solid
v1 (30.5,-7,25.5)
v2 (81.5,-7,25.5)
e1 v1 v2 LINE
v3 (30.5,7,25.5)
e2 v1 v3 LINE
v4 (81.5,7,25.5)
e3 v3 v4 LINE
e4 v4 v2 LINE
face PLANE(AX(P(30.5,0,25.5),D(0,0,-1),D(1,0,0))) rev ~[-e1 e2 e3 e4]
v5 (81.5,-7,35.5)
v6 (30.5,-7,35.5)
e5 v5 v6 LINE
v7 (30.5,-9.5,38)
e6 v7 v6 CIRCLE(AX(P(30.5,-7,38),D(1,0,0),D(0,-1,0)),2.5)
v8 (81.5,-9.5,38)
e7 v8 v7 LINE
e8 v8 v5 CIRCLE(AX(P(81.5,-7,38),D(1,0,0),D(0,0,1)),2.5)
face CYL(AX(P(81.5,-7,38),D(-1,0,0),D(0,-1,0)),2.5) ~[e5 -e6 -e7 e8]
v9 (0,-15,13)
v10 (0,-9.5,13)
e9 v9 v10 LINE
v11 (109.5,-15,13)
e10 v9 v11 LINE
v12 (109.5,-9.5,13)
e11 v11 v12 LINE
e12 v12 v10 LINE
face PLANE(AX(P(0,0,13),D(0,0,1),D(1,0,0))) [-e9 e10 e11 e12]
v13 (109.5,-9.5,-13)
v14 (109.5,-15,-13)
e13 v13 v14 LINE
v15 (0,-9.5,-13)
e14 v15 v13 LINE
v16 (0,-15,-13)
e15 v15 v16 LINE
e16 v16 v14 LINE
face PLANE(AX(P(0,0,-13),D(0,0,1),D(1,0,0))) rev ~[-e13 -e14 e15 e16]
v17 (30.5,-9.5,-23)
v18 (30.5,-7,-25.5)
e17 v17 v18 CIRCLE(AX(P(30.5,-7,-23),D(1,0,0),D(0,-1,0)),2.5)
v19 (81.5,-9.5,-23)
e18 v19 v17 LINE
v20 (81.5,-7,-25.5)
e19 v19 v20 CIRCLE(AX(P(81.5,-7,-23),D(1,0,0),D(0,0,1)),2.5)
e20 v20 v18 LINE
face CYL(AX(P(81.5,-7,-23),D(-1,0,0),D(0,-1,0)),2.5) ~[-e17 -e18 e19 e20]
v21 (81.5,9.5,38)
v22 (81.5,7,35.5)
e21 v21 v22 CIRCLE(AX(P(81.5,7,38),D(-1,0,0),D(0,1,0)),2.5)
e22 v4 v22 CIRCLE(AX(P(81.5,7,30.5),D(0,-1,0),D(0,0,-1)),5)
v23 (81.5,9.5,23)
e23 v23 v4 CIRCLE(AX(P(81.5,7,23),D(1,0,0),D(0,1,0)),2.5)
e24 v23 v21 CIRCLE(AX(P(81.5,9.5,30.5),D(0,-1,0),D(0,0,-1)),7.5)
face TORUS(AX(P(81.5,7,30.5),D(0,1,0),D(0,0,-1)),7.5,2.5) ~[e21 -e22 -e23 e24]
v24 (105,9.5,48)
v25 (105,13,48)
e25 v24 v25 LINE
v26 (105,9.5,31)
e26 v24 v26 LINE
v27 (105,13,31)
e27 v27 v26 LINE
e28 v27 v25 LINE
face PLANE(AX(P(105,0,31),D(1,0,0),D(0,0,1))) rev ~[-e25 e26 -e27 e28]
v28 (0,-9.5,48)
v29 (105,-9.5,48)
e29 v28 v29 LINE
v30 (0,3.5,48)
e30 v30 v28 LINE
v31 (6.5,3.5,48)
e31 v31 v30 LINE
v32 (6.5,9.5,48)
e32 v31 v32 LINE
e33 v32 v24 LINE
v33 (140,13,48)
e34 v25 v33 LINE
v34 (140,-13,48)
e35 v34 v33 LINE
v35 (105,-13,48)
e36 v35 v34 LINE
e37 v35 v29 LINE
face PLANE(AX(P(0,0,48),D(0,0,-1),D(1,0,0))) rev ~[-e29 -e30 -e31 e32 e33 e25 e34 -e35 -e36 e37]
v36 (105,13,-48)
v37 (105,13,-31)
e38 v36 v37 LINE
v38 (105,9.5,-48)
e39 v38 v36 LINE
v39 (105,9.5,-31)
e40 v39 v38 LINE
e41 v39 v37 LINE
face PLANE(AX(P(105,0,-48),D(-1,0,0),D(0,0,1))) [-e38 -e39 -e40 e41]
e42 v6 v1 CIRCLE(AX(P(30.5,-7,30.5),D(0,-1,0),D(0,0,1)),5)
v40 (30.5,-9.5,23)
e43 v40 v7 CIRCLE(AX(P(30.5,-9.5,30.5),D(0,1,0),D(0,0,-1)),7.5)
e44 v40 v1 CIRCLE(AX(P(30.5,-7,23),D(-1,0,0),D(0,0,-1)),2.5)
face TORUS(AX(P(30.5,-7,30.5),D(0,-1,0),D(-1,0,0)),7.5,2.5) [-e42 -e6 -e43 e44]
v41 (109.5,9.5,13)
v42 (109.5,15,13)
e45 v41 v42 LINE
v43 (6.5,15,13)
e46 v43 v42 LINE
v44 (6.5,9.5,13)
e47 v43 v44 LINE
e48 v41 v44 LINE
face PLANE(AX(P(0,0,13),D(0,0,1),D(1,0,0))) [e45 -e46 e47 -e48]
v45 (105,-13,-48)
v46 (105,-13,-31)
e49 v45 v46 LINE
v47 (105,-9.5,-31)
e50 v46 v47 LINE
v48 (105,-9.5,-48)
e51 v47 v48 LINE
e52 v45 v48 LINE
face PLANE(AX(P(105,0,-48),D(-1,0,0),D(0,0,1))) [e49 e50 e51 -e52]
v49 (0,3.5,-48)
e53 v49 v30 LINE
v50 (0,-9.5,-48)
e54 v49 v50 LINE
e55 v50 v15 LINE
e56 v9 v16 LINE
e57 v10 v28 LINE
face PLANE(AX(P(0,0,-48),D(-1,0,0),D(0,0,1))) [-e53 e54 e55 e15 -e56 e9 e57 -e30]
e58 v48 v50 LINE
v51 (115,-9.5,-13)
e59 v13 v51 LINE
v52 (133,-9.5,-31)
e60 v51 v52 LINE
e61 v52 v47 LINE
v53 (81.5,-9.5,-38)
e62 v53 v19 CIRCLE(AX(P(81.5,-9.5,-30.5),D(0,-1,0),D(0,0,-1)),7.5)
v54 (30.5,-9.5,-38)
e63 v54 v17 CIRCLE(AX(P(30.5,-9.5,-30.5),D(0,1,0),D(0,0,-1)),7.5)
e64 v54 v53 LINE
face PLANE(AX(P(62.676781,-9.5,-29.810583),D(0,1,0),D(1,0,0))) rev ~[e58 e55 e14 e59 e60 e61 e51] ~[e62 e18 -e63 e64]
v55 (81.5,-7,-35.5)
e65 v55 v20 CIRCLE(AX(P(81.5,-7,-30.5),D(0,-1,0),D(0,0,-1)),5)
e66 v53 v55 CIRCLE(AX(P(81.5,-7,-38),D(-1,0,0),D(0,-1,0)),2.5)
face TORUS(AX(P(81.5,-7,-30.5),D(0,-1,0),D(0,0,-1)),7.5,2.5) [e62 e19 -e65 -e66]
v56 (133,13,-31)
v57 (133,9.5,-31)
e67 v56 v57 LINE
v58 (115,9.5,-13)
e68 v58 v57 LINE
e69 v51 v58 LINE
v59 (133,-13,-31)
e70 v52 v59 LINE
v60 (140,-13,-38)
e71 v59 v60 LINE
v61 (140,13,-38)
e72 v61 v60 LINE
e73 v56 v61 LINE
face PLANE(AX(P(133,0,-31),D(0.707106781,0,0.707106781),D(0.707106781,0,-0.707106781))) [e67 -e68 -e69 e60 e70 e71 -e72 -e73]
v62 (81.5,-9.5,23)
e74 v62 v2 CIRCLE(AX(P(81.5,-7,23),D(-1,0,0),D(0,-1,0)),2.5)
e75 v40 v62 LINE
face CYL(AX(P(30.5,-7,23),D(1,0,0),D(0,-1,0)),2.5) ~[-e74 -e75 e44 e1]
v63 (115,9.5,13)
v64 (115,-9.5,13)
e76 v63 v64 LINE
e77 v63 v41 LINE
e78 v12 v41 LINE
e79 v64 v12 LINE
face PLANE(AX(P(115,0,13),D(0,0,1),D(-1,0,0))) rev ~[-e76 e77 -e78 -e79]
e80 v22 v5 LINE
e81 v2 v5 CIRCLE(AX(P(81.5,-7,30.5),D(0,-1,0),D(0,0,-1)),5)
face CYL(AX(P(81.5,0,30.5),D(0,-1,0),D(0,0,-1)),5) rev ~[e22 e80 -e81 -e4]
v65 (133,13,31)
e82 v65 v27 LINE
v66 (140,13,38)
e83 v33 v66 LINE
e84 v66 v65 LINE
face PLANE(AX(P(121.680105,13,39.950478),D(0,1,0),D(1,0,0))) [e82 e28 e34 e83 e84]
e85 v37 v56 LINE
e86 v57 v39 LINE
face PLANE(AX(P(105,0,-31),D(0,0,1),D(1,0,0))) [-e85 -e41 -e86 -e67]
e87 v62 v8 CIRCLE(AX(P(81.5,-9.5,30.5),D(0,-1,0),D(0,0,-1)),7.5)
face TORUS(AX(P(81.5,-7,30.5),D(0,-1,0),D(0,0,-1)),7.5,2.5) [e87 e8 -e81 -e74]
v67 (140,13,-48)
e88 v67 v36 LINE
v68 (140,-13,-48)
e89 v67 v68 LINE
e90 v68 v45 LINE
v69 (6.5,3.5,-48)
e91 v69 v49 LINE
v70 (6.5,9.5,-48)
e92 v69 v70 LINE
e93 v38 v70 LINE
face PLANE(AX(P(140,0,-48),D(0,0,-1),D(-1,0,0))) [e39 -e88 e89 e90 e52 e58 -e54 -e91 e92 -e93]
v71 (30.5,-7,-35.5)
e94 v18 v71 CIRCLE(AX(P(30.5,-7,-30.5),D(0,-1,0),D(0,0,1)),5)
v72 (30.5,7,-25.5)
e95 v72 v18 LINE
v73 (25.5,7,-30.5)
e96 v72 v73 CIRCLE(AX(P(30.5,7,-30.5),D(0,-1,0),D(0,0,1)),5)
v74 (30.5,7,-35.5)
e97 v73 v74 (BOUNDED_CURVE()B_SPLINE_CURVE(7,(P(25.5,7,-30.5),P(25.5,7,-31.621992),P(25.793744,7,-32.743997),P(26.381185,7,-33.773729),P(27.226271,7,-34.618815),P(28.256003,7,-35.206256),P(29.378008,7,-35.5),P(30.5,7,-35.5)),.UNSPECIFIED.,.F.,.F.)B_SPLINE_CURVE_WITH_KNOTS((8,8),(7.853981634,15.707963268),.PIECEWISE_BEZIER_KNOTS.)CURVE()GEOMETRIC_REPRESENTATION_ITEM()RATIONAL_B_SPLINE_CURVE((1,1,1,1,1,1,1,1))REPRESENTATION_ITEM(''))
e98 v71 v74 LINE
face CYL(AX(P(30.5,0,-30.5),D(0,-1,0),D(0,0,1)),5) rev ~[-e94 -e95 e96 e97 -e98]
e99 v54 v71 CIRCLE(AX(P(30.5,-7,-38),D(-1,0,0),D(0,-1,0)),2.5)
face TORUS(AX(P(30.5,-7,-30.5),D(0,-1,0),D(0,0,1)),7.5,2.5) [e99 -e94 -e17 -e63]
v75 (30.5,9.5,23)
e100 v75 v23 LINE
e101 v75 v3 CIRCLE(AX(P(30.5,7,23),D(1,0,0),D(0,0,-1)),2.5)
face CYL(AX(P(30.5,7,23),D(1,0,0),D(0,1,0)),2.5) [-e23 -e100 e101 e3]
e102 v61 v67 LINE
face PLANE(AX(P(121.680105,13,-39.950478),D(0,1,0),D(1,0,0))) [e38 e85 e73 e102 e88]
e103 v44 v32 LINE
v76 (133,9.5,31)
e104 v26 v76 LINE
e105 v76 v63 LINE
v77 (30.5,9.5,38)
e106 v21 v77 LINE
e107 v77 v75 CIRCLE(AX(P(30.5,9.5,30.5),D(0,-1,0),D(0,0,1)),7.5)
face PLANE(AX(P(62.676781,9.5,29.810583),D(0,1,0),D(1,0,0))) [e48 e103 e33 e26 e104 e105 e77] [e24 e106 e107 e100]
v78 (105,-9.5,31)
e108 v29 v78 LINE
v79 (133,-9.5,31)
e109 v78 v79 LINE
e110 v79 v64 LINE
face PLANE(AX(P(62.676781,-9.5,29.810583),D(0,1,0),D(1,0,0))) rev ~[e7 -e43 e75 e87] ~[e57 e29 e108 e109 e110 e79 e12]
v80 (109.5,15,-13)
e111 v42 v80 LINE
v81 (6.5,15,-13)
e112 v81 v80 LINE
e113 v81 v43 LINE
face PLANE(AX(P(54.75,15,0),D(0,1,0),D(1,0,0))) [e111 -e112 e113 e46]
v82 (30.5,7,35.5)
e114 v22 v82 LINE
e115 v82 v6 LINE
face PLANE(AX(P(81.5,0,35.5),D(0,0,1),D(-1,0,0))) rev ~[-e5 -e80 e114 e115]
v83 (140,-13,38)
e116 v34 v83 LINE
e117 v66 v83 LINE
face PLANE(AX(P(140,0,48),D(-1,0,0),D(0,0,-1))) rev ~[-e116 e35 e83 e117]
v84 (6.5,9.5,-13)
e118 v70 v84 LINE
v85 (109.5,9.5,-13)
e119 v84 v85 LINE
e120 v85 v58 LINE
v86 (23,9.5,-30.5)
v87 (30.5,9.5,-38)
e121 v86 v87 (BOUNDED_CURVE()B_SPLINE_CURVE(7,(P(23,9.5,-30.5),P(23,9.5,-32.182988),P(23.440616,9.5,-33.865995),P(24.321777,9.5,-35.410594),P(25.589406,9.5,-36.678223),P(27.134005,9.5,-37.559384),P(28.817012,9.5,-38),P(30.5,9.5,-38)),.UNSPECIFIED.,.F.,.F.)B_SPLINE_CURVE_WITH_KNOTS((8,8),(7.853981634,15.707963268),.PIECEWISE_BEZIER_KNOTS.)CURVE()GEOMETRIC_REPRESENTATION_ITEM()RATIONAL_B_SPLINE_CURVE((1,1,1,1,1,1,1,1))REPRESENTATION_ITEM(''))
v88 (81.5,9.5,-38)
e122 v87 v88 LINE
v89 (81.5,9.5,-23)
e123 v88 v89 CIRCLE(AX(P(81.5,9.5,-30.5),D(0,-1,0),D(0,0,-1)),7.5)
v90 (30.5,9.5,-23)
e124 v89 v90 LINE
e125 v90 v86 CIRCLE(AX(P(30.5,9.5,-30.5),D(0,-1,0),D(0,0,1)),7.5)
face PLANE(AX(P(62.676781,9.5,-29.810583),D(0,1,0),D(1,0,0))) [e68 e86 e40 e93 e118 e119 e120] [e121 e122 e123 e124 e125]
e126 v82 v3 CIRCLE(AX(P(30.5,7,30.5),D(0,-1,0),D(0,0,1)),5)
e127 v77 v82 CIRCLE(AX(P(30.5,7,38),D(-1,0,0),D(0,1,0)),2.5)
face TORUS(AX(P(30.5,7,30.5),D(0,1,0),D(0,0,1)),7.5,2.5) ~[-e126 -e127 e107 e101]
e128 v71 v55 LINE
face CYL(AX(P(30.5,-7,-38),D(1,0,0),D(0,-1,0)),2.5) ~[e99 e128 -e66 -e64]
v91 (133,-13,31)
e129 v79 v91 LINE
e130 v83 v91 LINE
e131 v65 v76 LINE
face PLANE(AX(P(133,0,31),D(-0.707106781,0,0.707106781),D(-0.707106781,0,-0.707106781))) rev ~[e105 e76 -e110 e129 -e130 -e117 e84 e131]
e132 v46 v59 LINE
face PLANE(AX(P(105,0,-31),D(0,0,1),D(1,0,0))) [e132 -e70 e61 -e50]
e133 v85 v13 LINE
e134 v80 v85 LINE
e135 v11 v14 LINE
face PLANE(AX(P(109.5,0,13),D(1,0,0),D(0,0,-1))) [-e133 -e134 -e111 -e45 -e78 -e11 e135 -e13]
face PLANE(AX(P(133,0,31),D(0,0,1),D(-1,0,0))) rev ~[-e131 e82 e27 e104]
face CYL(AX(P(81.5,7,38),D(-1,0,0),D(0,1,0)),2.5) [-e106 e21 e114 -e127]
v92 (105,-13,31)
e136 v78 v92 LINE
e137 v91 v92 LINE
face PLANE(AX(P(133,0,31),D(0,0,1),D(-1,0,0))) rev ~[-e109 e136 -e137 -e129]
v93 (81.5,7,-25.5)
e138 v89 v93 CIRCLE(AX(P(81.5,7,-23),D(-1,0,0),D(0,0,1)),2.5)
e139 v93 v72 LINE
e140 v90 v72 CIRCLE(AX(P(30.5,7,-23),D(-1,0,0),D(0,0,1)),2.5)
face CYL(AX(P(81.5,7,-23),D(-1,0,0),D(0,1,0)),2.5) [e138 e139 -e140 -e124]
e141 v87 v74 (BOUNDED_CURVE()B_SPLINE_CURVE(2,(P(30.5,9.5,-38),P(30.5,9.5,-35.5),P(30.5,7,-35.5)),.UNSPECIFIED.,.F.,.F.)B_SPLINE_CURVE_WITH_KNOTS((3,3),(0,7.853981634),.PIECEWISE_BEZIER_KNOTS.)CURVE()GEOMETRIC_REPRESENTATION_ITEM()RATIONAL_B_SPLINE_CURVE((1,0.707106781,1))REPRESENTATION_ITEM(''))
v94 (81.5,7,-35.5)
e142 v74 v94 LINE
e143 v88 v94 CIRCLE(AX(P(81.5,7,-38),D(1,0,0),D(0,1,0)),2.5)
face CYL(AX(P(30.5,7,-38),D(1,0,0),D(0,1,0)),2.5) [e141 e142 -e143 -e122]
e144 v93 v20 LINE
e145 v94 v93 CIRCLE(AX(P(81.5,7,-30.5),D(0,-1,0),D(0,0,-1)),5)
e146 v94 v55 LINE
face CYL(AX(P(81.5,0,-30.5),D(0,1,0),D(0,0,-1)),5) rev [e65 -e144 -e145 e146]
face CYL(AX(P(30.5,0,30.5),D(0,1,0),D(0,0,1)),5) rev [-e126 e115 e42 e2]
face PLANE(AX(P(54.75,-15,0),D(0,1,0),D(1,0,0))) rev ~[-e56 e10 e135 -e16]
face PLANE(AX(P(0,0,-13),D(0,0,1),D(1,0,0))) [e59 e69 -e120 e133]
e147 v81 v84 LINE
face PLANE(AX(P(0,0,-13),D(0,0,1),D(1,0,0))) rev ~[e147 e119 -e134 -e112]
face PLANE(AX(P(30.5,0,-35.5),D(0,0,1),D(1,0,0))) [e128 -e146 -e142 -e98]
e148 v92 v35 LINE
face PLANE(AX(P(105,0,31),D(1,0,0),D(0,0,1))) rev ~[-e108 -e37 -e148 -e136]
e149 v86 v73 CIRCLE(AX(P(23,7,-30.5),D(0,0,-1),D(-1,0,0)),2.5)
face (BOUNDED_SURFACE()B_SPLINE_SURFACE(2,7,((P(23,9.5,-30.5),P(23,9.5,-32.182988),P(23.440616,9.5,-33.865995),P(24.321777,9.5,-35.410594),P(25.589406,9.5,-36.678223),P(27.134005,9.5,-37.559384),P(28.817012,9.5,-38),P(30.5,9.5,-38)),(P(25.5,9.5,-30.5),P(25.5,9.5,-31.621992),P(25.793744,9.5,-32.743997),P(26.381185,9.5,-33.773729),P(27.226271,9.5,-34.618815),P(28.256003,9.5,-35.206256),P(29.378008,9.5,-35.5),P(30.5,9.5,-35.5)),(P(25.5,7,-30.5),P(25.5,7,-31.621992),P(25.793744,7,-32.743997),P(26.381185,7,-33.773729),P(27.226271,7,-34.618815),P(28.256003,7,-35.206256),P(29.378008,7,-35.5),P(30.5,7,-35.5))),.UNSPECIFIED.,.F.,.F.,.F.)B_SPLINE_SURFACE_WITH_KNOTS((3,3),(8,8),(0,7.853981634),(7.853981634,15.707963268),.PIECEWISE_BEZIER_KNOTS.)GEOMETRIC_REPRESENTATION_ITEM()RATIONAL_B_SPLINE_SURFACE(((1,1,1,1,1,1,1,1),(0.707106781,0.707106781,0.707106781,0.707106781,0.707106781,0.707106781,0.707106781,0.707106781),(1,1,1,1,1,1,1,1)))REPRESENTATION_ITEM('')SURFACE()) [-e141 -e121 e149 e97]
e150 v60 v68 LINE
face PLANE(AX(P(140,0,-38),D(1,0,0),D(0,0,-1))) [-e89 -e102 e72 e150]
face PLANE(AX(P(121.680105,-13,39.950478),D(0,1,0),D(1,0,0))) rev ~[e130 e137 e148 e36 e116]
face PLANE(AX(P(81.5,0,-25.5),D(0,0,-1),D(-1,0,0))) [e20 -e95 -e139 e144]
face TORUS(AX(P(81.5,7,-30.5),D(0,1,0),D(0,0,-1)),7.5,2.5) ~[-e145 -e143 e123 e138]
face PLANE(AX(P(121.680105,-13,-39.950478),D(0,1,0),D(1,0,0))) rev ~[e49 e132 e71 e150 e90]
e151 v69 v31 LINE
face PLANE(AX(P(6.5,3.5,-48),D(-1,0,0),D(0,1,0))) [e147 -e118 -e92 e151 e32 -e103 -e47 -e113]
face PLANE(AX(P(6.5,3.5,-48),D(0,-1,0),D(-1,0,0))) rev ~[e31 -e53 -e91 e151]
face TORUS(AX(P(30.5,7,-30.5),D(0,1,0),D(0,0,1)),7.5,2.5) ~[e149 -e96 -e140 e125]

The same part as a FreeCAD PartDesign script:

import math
import FreeCAD as App
import Part
import Sketcher

V = App.Vector


def edges_at(feature, points):
    """Names of the edges that pass closest to the given points."""
    edges = feature.Shape.Edges
    near = lambda p: min(range(len(edges)), key=lambda i: edges[i].distToShape(Part.Vertex(*p))[0])
    return sorted({f"Edge{near(p) + 1}" for p in points})


def add_polygon(sketch, points):
    """Adds a closed chain of lines whose ends are joined by coincident constraints."""
    first, n = sketch.GeometryCount, len(points)
    for a, b in zip(points, points[1:] + points[:1]):
        sketch.addGeometry(Part.LineSegment(App.Vector(*a, 0), App.Vector(*b, 0)), False)
    for i in range(n):
        sketch.addConstraint(Sketcher.Constraint("Coincident", first + i, 2, first + (i + 1) % n, 1))

doc = App.newDocument("Part")
params = doc.addObject("Spreadsheet::Sheet", "Params")
for row, (alias, value) in enumerate([
    ("sketch1_height", "26 mm"),
    ("sketch1_width", "109.5 mm"),
    ("pad1_length", "30 mm"),
    ("sketch2_radius", "5 mm"),
    ("sketch2_width", "105 mm"),
    ("sketch2_width2", "28 mm"),
    ("sketch2_width3", "115 mm"),
    ("sketch2_width4", "51 mm"),
    ("pad2_length", "19 mm"),
    ("sketch3_width", "35 mm"),
    ("sketch3_width2", "28 mm"),
    ("sketch3_height", "17 mm"),
    ("pad3_length", "26 mm"),
    ("sketch4_width", "6.5 mm"),
    ("sketch4_height", "11.5 mm"),
    ("fillet_radius", "2.5 mm"),
], start=1):
    params.set(f"A{row}", alias)
    params.set(f"B{row}", "=" + value)
    params.setAlias(f"B{row}", alias)

body = doc.addObject("PartDesign::Body", "Body")

sketch1 = doc.addObject("Sketcher::SketchObject", "Sketch")
body.addObject(sketch1)
sketch1.AttachmentSupport = (doc.XZ_Plane, [""])
sketch1.MapMode = "FlatFace"
add_polygon(sketch1, [(0, -13), (0, 13), (110, 13), (110, -13)])
sketch1.addConstraint([
    Sketcher.Constraint("Vertical", 0),
    Sketcher.Constraint("Horizontal", 1),
    Sketcher.Constraint("Vertical", 2),
    Sketcher.Constraint("Horizontal", 3),
    Sketcher.Constraint("Symmetric", 0, 2, 3, 2, -1, 1),
    Sketcher.Constraint("DistanceY", 0, 1, 0, 2, 26.0),
    Sketcher.Constraint("DistanceX", 1, 1, 1, 2, 109.5),
])
sketch1.setExpression("Constraints[9]", "Params.sketch1_height")
sketch1.setExpression("Constraints[10]", "Params.sketch1_width")
pad1 = doc.addObject("PartDesign::Pad", "Pad")
body.addObject(pad1)
pad1.Profile = sketch1
pad1.setExpression("Length", "Params.pad1_length")
pad1.Midplane = True

sketch2 = doc.addObject("Sketcher::SketchObject", "Sketch001")
body.addObject(sketch2)
sketch2.AttachmentSupport = (doc.XZ_Plane, [""])
sketch2.MapMode = "FlatFace"
add_polygon(sketch2, [(0, 48), (105, 48), (105, 31), (133, 31), (115, 13), (0, 13)])
sketch2.addGeometry(Part.LineSegment(V(82, 36, 0), V(30, 36, 0)), False)
sketch2.addGeometry(Part.ArcOfCircle(Part.Circle(V(30, 30, 0), V(0, 0, 1), 5), math.radians(90), math.radians(180)), False)
sketch2.addGeometry(Part.ArcOfCircle(Part.Circle(V(30, 30, 0), V(0, 0, 1), 5), math.radians(180), math.radians(270)), False)
sketch2.addGeometry(Part.LineSegment(V(30, 26, 0), V(82, 26, 0)), False)
sketch2.addGeometry(Part.ArcOfCircle(Part.Circle(V(82, 30, 0), V(0, 0, 1), 5), math.radians(-90), math.radians(90)), False)
add_polygon(sketch2, [(0, -13), (115, -13), (133, -31), (105, -31), (105, -48), (0, -48)])
sketch2.addGeometry(Part.LineSegment(V(82, -26, 0), V(30, -26, 0)), False)
sketch2.addGeometry(Part.ArcOfCircle(Part.Circle(V(30, -30, 0), V(0, 0, 1), 5), math.radians(90), math.radians(180)), False)
sketch2.addGeometry(Part.ArcOfCircle(Part.Circle(V(30, -30, 0), V(0, 0, 1), 5), math.radians(180), math.radians(270)), False)
sketch2.addGeometry(Part.LineSegment(V(30, -36, 0), V(82, -36, 0)), False)
sketch2.addGeometry(Part.ArcOfCircle(Part.Circle(V(82, -30, 0), V(0, 0, 1), 5), math.radians(-90), math.radians(90)), False)
sketch2.addConstraint([
    Sketcher.Constraint("Tangent", 6, 2, 7, 1),
    Sketcher.Constraint("Tangent", 7, 2, 8, 1),
    Sketcher.Constraint("Tangent", 8, 2, 9, 1),
    Sketcher.Constraint("Tangent", 9, 2, 10, 1),
    Sketcher.Constraint("Tangent", 10, 2, 6, 1),
    Sketcher.Constraint("Tangent", 17, 2, 18, 1),
    Sketcher.Constraint("Tangent", 18, 2, 19, 1),
    Sketcher.Constraint("Tangent", 19, 2, 20, 1),
    Sketcher.Constraint("Tangent", 20, 2, 21, 1),
    Sketcher.Constraint("Tangent", 21, 2, 17, 1),
    Sketcher.Constraint("Horizontal", 0),
    Sketcher.Constraint("Vertical", 1),
    Sketcher.Constraint("Horizontal", 2),
    Sketcher.Constraint("Horizontal", 4),
    Sketcher.Constraint("Vertical", 5),
    Sketcher.Constraint("Horizontal", 6),
    Sketcher.Constraint("Horizontal", 9),
    Sketcher.Constraint("Horizontal", 11),
    Sketcher.Constraint("Horizontal", 13),
    Sketcher.Constraint("Vertical", 14),
    Sketcher.Constraint("Horizontal", 15),
    Sketcher.Constraint("Vertical", 16),
    Sketcher.Constraint("Horizontal", 17),
    Sketcher.Constraint("Horizontal", 20),
    Sketcher.Constraint("Equal", 7, 8),
    Sketcher.Constraint("Equal", 10, 18),
    Sketcher.Constraint("Equal", 18, 19),
    Sketcher.Constraint("Symmetric", 5, 2, 15, 2, -1, 1),
    Sketcher.Constraint("Symmetric", 7, 3, 18, 3, -1),
    Sketcher.Constraint("Symmetric", 3, 2, 11, 2, -1),
    Sketcher.Constraint("Symmetric", 2, 2, 12, 2, -1),
    Sketcher.Constraint("PointOnObject", 4, 2, -2),
    Sketcher.Constraint("Perpendicular", 3, 12),
    Sketcher.Constraint("Horizontal", 10, 3, 7, 2),
    Sketcher.Constraint("Horizontal", 21, 3, 18, 2),
    Sketcher.Constraint("Vertical", 10, 3, 21, 3),
    Sketcher.Constraint("Vertical", 1, 2, 13, 2),
    Sketcher.Constraint("Radius", 7, 5.0),
    Sketcher.Constraint("DistanceX", 0, 1, 0, 2, 105.0),
    Sketcher.Constraint("DistanceX", 2, 1, 2, 2, 28.0),
    Sketcher.Constraint("DistanceX", 4, 2, 4, 1, 115.0),
    Sketcher.Constraint("DistanceX", 6, 2, 6, 1, 51.0),
    Sketcher.Constraint("DistanceY", 1, 2, 1, 1, 17.0),
    Sketcher.Constraint("DistanceY", -1, 1, 0, 2, 48.0),
    Sketcher.Constraint("DistanceY", 18, 3, 7, 3, 61.0),
    Sketcher.Constraint("DistanceX", -1, 1, 7, 3, 30.5),
])
sketch2.setExpression("Constraints[49]", "Params.sketch2_radius")
sketch2.setExpression("Constraints[50]", "Params.sketch2_width")
sketch2.setExpression("Constraints[51]", "Params.sketch2_width2")
sketch2.setExpression("Constraints[52]", "Params.sketch2_width3")
sketch2.setExpression("Constraints[53]", "Params.sketch2_width4")
pad2 = doc.addObject("PartDesign::Pad", "Pad001")
body.addObject(pad2)
pad2.Profile = sketch2
pad2.setExpression("Length", "Params.pad2_length")
pad2.Midplane = True

sketch3 = doc.addObject("Sketcher::SketchObject", "Sketch002")
body.addObject(sketch3)
sketch3.AttachmentSupport = (doc.XZ_Plane, [""])
sketch3.MapMode = "FlatFace"
add_polygon(sketch3, [(105, 31), (105, 48), (140, 48), (140, 38), (133, 31)])
add_polygon(sketch3, [(140, -48), (105, -48), (105, -31), (133, -31), (140, -38)])
sketch3.addConstraint([
    Sketcher.Constraint("Vertical", 0),
    Sketcher.Constraint("Horizontal", 1),
    Sketcher.Constraint("Vertical", 2),
    Sketcher.Constraint("Horizontal", 4),
    Sketcher.Constraint("Horizontal", 5),
    Sketcher.Constraint("Vertical", 6),
    Sketcher.Constraint("Horizontal", 7),
    Sketcher.Constraint("Vertical", 9),
    Sketcher.Constraint("Symmetric", 0, 2, 5, 2, -1),
    Sketcher.Constraint("Symmetric", 3, 2, 7, 2, -1),
    Sketcher.Constraint("Symmetric", 2, 2, 8, 2, -1),
    Sketcher.Constraint("Perpendicular", 3, 8),
    Sketcher.Constraint("DistanceX", 1, 1, 1, 2, 35.0),
    Sketcher.Constraint("DistanceX", 4, 2, 4, 1, 28.0),
    Sketcher.Constraint("DistanceY", 0, 1, 0, 2, 17.0),
    Sketcher.Constraint("DistanceX", -1, 1, 0, 2, 105.0),
    Sketcher.Constraint("DistanceY", -1, 1, 0, 2, 48.0),
])
sketch3.setExpression("Constraints[22]", "Params.sketch3_width")
sketch3.setExpression("Constraints[23]", "Params.sketch3_width2")
sketch3.setExpression("Constraints[24]", "Params.sketch3_height")
pad3 = doc.addObject("PartDesign::Pad", "Pad002")
body.addObject(pad3)
pad3.Profile = sketch3
pad3.setExpression("Length", "Params.pad3_length")
pad3.Midplane = True

sketch4 = doc.addObject("Sketcher::SketchObject", "Sketch003")
body.addObject(sketch4)
sketch4.AttachmentSupport = (doc.XY_Plane, [""])
sketch4.MapMode = "FlatFace"
sketch4.AttachmentOffset = App.Placement(V(0, 0, -48), App.Rotation())
add_polygon(sketch4, [(6, 15), (6, 4), (0, 4), (0, 15)])
sketch4.addConstraint([
    Sketcher.Constraint("Vertical", 0),
    Sketcher.Constraint("Horizontal", 1),
    Sketcher.Constraint("Vertical", 2),
    Sketcher.Constraint("Horizontal", 3),
    Sketcher.Constraint("PointOnObject", 1, 2, -2),
    Sketcher.Constraint("DistanceX", 1, 2, 1, 1, 6.5),
    Sketcher.Constraint("DistanceY", 0, 2, 0, 1, 11.5),
    Sketcher.Constraint("DistanceY", -1, 1, 2, 2, 15.0),
])
sketch4.setExpression("Constraints[9]", "Params.sketch4_width")
sketch4.setExpression("Constraints[10]", "Params.sketch4_height")
pocket1 = doc.addObject("PartDesign::Pocket", "Pocket")
body.addObject(pocket1)
pocket1.Profile = sketch4
pocket1.Type = "ThroughAll"
pocket1.Reversed = True
doc.recompute()

fillet = doc.addObject("PartDesign::Fillet", "Fillet")
body.addObject(fillet)
fillet.Base = (pocket1, edges_at(pocket1, [
    (26.964, 9.5, -26.964),
    (56, -9.5, -35.5),
    (86.5, 9.5, -30.5),
    (56, 9.5, -25.5),
    (56, 9.5, -35.5),
    (26.964, -9.5, -34.036),
    (56, -9.5, -25.5),
    (86.5, -9.5, -30.5),
    (26.964, -9.5, 26.964),
    (56, -9.5, 25.5),
    (86.5, -9.5, 30.5),
    (56, 9.5, 35.5),
    (26.964, 9.5, 34.036),
    (56, 9.5, 25.5),
    (86.5, 9.5, 30.5),
    (56, -9.5, 35.5),
]))
fillet.setExpression("Radius", "Params.fillet_radius")

doc.recompute()
